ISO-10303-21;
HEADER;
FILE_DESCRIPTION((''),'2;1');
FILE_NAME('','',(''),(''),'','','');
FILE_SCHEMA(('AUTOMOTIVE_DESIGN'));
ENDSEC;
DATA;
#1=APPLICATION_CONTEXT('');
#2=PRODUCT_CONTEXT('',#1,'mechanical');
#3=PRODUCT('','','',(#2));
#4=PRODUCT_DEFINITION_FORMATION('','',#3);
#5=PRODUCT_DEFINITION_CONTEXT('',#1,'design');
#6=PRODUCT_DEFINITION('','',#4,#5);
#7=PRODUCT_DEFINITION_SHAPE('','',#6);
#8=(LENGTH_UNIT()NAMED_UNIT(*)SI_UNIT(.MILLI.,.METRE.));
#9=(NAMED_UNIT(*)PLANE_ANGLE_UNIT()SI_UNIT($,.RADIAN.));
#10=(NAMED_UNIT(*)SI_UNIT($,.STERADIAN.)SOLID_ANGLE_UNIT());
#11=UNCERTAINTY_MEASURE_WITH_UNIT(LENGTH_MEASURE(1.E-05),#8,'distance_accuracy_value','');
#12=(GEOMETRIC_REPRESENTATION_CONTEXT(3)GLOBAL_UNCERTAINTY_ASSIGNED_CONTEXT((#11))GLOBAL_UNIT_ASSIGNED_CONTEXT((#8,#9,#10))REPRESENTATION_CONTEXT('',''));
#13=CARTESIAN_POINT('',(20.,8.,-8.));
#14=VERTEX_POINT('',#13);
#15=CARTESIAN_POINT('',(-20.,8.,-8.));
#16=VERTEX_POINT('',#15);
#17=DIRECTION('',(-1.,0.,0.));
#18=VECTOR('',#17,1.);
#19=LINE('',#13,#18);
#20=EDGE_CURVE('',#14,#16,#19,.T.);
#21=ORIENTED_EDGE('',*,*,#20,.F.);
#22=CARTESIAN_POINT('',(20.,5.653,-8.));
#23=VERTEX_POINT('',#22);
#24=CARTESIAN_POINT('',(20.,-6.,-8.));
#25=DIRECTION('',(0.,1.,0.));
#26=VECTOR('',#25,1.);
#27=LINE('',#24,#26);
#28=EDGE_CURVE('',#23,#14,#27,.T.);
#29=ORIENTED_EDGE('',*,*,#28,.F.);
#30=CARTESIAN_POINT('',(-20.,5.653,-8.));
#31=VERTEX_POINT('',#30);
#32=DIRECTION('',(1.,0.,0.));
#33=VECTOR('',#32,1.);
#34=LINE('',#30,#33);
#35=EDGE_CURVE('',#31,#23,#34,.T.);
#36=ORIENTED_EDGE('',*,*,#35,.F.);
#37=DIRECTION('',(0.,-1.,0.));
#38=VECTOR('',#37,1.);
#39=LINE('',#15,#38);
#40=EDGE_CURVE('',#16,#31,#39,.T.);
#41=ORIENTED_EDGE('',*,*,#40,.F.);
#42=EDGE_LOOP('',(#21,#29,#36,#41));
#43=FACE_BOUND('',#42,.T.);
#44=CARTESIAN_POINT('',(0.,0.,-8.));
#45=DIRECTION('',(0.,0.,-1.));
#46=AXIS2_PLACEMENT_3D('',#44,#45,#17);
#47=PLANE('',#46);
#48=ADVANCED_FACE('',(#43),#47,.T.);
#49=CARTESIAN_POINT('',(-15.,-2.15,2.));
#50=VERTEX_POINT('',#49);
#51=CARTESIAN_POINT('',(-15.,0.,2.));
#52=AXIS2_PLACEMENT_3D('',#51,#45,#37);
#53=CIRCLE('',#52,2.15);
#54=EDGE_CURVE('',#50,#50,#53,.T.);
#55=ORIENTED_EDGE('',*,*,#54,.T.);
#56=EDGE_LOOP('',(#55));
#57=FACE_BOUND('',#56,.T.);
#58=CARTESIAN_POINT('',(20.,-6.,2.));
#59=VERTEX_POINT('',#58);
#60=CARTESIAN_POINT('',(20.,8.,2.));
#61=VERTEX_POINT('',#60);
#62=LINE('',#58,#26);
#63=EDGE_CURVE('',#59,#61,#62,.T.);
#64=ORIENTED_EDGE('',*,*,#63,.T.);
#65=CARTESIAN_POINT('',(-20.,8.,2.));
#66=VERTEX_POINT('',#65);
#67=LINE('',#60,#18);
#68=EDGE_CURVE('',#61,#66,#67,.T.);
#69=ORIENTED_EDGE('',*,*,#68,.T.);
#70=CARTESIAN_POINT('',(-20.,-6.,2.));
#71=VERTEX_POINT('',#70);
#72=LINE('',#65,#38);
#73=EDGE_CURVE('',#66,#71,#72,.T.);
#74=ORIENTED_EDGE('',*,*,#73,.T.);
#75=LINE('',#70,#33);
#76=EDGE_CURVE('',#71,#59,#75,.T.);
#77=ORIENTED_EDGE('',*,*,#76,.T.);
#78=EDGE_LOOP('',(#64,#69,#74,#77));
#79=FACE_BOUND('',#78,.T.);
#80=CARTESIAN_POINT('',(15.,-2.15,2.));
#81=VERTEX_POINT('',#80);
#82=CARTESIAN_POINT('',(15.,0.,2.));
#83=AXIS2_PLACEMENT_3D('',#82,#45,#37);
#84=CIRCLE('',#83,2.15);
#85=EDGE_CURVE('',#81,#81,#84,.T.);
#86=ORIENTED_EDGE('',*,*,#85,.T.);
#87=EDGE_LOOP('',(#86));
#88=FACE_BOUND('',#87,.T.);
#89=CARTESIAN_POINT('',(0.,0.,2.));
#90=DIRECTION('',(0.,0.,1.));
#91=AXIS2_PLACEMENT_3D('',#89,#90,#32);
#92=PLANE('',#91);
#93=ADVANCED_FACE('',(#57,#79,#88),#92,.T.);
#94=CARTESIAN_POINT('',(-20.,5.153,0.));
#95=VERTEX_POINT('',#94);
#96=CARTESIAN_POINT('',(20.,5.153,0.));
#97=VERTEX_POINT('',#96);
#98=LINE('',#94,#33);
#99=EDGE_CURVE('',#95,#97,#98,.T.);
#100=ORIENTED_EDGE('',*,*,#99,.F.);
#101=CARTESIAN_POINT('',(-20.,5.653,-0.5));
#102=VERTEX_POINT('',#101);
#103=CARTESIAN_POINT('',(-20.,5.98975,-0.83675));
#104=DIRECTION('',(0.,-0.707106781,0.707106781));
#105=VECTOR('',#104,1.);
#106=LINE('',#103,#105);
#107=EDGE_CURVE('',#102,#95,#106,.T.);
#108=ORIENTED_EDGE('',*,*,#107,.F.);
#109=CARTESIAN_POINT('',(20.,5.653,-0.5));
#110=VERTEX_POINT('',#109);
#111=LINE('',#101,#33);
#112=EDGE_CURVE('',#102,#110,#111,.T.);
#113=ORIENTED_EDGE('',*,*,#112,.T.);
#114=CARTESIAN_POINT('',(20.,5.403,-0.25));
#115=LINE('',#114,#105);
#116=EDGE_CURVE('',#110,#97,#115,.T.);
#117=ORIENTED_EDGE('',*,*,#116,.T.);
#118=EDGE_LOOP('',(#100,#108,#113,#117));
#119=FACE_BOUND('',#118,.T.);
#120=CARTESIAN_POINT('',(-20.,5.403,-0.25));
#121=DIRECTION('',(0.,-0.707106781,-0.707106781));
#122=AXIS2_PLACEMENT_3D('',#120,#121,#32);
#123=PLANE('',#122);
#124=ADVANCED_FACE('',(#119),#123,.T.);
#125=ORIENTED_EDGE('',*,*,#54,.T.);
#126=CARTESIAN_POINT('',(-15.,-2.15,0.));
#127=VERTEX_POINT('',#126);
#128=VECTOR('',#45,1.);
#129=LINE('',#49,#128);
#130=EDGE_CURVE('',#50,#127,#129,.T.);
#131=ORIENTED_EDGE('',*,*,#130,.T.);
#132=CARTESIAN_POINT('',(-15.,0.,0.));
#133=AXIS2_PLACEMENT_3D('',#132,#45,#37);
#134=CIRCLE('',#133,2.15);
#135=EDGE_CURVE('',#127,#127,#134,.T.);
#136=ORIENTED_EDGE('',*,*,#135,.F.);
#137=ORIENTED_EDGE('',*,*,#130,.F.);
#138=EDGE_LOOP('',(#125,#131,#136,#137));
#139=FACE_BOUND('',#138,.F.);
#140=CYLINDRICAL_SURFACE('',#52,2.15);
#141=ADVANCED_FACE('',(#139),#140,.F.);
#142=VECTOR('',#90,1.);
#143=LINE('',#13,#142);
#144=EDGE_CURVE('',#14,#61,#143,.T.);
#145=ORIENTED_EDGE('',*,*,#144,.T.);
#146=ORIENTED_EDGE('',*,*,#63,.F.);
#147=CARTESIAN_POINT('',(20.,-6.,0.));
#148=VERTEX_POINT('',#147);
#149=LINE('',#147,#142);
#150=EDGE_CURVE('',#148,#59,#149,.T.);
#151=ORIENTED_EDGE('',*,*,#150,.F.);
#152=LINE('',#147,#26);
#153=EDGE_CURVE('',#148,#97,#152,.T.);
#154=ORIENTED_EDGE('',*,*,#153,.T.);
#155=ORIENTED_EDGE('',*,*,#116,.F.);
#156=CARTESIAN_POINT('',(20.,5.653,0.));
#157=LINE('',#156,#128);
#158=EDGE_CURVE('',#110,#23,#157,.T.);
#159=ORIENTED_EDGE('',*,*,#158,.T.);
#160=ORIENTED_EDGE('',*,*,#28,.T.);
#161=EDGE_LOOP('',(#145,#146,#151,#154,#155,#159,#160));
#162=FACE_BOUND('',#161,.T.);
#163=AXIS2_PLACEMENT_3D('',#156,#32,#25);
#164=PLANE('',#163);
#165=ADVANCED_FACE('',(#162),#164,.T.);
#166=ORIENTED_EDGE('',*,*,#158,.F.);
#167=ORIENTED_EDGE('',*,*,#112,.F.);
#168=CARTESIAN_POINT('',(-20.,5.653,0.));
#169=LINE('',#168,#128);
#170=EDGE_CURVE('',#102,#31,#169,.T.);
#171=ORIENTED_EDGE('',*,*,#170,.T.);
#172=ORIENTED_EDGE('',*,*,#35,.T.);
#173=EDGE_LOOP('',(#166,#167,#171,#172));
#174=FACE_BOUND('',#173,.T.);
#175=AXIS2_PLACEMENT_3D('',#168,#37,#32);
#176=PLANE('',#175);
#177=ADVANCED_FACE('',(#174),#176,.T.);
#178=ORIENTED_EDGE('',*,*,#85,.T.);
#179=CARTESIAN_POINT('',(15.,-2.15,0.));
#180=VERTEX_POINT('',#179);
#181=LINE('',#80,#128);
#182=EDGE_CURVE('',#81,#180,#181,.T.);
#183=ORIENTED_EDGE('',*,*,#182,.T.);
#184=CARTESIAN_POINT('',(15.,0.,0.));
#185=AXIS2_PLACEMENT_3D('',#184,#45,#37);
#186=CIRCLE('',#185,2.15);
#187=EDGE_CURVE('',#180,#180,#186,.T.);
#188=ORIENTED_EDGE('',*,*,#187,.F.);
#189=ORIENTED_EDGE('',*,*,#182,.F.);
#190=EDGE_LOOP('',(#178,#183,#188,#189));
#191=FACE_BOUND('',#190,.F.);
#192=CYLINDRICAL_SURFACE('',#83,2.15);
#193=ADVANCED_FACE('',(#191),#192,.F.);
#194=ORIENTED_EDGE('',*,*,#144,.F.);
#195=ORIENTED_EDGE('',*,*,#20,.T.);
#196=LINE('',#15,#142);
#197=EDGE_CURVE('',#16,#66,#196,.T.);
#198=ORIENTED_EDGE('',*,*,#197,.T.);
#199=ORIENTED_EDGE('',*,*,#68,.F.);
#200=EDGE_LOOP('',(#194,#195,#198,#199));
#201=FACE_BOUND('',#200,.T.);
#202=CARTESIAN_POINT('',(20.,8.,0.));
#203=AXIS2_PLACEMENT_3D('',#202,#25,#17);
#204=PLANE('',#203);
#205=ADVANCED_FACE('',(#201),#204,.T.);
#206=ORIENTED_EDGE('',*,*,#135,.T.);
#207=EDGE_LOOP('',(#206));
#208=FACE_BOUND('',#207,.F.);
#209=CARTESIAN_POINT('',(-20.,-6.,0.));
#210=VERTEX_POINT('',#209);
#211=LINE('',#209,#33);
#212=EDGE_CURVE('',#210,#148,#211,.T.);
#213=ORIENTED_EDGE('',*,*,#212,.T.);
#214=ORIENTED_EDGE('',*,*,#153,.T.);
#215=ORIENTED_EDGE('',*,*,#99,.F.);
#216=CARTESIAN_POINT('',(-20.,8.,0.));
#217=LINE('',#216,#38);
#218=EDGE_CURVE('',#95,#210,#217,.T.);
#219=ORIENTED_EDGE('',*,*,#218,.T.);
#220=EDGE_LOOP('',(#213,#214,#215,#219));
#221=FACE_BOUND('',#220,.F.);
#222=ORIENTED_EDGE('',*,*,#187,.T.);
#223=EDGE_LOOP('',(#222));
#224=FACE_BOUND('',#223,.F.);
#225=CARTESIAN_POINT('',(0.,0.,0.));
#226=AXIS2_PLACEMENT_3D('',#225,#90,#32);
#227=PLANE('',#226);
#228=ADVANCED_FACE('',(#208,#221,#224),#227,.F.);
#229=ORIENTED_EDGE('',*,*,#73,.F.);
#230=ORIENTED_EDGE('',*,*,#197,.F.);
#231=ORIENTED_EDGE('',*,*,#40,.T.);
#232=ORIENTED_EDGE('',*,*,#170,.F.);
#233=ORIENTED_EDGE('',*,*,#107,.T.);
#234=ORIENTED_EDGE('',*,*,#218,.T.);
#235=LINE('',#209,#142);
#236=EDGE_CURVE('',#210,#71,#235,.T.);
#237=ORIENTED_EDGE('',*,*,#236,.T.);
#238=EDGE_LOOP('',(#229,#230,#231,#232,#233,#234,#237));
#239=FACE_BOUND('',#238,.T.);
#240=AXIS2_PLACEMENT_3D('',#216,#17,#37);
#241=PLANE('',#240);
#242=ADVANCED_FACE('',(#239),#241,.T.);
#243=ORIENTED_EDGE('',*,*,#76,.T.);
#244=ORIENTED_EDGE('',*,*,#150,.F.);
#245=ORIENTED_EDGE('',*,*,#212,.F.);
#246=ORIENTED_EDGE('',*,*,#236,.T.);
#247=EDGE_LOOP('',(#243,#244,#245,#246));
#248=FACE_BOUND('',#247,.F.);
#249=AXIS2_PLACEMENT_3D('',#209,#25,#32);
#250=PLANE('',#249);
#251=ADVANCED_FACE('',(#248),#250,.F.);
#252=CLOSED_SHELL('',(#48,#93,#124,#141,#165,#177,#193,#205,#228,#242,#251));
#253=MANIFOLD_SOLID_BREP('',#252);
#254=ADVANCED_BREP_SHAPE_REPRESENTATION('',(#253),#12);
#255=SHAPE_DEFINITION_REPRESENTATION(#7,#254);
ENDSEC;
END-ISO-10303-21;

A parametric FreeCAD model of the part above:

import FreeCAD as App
import Part
import Sketcher

V = App.Vector


def edges_at(feature, points):
    """Names of the edges that pass closest to the given points."""
    edges = feature.Shape.Edges
    near = lambda p: min(range(len(edges)), key=lambda i: edges[i].distToShape(Part.Vertex(*p))[0])
    return sorted({f"Edge{near(p) + 1}" for p in points})


def add_polygon(sketch, points):
    """Adds a closed chain of lines whose ends are joined by coincident constraints."""
    first, n = sketch.GeometryCount, len(points)
    for a, b in zip(points, points[1:] + points[:1]):
        sketch.addGeometry(Part.LineSegment(App.Vector(*a, 0), App.Vector(*b, 0)), False)
    for i in range(n):
        sketch.addConstraint(Sketcher.Constraint("Coincident", first + i, 2, first + (i + 1) % n, 1))

doc = App.newDocument("Part")
params = doc.addObject("Spreadsheet::Sheet", "Params")
for row, (alias, value) in enumerate([
    ("sketch1_width", "40 mm"),
    ("pad1_length", "2 mm"),
    ("sketch2_diameter", "4.3 mm"),
    ("hole_diameter", "4.3 mm"),
    ("sketch3_width", "40 mm"),
    ("pad2_length", "8 mm"),
    ("chamfer_size", "0.5 mm"),
], start=1):
    params.set(f"A{row}", alias)
    params.set(f"B{row}", "=" + value)
    params.setAlias(f"B{row}", alias)

body = doc.addObject("PartDesign::Body", "Body")

# Sketch on XY plane
sketch1 = body.newObject("Sketcher::SketchObject", "Sketch")
sketch1.AttachmentSupport = (doc.getObject("XY_Plane"), [""])
sketch1.MapMode = "FlatFace"
add_polygon(sketch1, [(-20, 8), (-20, -6), (20, -6), (20, 8)])  # lines 0-3
sketch1.addConstraint([
    Sketcher.Constraint("Vertical", 0),
    Sketcher.Constraint("Horizontal", 1),
    Sketcher.Constraint("Vertical", 2),
    Sketcher.Constraint("Horizontal", 3),
    Sketcher.Constraint("DistanceX", 1, 1, 1, 2, 40.0),
    Sketcher.Constraint("DistanceX", 0, 2, -1, 1, 20.0),
    Sketcher.Constraint("DistanceY", 0, 2, -1, 1, 6.0),
    Sketcher.Constraint("DistanceY", -1, 1, 2, 2, 8.0),
])
sketch1.setExpression("Constraints[8]", "Params.sketch1_width")
pad1 = body.newObject("PartDesign::Pad", "Pad")
pad1.Profile = sketch1
pad1.setExpression("Length", "Params.pad1_length")

# Sketch on XY plane
sketch2 = body.newObject("Sketcher::SketchObject", "Sketch001")
sketch2.AttachmentSupport = (doc.getObject("XY_Plane"), [""])
sketch2.MapMode = "FlatFace"
sketch2.AttachmentOffset = App.Placement(V(0, 0, 2), App.Rotation())
sketch2.addGeometry([
    Part.Circle(V(-15, 0, 0), V(0, 0, 1), 2.1),
    Part.Circle(V(15, 0, 0), V(0, 0, 1), 2.1),
], False)
sketch2.addConstraint([
    Sketcher.Constraint("Equal", 0, 1),
    Sketcher.Constraint("Symmetric", 0, 3, 1, 3, -1, 1),
    Sketcher.Constraint("PointOnObject", 0, 3, -1),
    Sketcher.Constraint("Diameter", 0, 4.3),
    Sketcher.Constraint("DistanceX", 0, 3, -1, 1, 15.0),
])
sketch2.setExpression("Constraints[3]", "Params.sketch2_diameter")
doc.recompute()
hole = body.newObject("PartDesign::Hole", "Hole")
hole.Profile = sketch2
hole.ThreadType = "None"
hole.setExpression("Diameter", "Params.hole_diameter")
hole.DepthType = "ThroughAll"

# Sketch on XY plane
sketch3 = body.newObject("Sketcher::SketchObject", "Sketch002")
sketch3.AttachmentSupport = (doc.getObject("XY_Plane"), [""])
sketch3.MapMode = "FlatFace"
add_polygon(sketch3, [(20, 8), (20, 5.7), (-20, 5.7), (-20, 8)])  # lines 0-3
sketch3.addConstraint([
    Sketcher.Constraint("Vertical", 0),
    Sketcher.Constraint("Horizontal", 1),
    Sketcher.Constraint("Vertical", 2),
    Sketcher.Constraint("Horizontal", 3),
    Sketcher.Constraint("DistanceX", 1, 2, 1, 1, 40.0),
    Sketcher.Constraint("DistanceY", 0, 2, 0, 1, 2.347),
    Sketcher.Constraint("DistanceX", -1, 1, 0, 2, 20.0),
    Sketcher.Constraint("DistanceY", -1, 1, 2, 2, 8.0),
])
sketch3.setExpression("Constraints[8]", "Params.sketch3_width")
pad2 = body.newObject("PartDesign::Pad", "Pad001")
pad2.Profile = sketch3
pad2.setExpression("Length", "Params.pad2_length")
pad2.Reversed = True
doc.recompute()

chamfer = body.newObject("PartDesign::Chamfer", "Chamfer")
chamfer.Base = (pad2, edges_at(pad2, [(0, 5.653, 0)]))
chamfer.setExpression("Size", "Params.chamfer_size")

doc.recompute()
